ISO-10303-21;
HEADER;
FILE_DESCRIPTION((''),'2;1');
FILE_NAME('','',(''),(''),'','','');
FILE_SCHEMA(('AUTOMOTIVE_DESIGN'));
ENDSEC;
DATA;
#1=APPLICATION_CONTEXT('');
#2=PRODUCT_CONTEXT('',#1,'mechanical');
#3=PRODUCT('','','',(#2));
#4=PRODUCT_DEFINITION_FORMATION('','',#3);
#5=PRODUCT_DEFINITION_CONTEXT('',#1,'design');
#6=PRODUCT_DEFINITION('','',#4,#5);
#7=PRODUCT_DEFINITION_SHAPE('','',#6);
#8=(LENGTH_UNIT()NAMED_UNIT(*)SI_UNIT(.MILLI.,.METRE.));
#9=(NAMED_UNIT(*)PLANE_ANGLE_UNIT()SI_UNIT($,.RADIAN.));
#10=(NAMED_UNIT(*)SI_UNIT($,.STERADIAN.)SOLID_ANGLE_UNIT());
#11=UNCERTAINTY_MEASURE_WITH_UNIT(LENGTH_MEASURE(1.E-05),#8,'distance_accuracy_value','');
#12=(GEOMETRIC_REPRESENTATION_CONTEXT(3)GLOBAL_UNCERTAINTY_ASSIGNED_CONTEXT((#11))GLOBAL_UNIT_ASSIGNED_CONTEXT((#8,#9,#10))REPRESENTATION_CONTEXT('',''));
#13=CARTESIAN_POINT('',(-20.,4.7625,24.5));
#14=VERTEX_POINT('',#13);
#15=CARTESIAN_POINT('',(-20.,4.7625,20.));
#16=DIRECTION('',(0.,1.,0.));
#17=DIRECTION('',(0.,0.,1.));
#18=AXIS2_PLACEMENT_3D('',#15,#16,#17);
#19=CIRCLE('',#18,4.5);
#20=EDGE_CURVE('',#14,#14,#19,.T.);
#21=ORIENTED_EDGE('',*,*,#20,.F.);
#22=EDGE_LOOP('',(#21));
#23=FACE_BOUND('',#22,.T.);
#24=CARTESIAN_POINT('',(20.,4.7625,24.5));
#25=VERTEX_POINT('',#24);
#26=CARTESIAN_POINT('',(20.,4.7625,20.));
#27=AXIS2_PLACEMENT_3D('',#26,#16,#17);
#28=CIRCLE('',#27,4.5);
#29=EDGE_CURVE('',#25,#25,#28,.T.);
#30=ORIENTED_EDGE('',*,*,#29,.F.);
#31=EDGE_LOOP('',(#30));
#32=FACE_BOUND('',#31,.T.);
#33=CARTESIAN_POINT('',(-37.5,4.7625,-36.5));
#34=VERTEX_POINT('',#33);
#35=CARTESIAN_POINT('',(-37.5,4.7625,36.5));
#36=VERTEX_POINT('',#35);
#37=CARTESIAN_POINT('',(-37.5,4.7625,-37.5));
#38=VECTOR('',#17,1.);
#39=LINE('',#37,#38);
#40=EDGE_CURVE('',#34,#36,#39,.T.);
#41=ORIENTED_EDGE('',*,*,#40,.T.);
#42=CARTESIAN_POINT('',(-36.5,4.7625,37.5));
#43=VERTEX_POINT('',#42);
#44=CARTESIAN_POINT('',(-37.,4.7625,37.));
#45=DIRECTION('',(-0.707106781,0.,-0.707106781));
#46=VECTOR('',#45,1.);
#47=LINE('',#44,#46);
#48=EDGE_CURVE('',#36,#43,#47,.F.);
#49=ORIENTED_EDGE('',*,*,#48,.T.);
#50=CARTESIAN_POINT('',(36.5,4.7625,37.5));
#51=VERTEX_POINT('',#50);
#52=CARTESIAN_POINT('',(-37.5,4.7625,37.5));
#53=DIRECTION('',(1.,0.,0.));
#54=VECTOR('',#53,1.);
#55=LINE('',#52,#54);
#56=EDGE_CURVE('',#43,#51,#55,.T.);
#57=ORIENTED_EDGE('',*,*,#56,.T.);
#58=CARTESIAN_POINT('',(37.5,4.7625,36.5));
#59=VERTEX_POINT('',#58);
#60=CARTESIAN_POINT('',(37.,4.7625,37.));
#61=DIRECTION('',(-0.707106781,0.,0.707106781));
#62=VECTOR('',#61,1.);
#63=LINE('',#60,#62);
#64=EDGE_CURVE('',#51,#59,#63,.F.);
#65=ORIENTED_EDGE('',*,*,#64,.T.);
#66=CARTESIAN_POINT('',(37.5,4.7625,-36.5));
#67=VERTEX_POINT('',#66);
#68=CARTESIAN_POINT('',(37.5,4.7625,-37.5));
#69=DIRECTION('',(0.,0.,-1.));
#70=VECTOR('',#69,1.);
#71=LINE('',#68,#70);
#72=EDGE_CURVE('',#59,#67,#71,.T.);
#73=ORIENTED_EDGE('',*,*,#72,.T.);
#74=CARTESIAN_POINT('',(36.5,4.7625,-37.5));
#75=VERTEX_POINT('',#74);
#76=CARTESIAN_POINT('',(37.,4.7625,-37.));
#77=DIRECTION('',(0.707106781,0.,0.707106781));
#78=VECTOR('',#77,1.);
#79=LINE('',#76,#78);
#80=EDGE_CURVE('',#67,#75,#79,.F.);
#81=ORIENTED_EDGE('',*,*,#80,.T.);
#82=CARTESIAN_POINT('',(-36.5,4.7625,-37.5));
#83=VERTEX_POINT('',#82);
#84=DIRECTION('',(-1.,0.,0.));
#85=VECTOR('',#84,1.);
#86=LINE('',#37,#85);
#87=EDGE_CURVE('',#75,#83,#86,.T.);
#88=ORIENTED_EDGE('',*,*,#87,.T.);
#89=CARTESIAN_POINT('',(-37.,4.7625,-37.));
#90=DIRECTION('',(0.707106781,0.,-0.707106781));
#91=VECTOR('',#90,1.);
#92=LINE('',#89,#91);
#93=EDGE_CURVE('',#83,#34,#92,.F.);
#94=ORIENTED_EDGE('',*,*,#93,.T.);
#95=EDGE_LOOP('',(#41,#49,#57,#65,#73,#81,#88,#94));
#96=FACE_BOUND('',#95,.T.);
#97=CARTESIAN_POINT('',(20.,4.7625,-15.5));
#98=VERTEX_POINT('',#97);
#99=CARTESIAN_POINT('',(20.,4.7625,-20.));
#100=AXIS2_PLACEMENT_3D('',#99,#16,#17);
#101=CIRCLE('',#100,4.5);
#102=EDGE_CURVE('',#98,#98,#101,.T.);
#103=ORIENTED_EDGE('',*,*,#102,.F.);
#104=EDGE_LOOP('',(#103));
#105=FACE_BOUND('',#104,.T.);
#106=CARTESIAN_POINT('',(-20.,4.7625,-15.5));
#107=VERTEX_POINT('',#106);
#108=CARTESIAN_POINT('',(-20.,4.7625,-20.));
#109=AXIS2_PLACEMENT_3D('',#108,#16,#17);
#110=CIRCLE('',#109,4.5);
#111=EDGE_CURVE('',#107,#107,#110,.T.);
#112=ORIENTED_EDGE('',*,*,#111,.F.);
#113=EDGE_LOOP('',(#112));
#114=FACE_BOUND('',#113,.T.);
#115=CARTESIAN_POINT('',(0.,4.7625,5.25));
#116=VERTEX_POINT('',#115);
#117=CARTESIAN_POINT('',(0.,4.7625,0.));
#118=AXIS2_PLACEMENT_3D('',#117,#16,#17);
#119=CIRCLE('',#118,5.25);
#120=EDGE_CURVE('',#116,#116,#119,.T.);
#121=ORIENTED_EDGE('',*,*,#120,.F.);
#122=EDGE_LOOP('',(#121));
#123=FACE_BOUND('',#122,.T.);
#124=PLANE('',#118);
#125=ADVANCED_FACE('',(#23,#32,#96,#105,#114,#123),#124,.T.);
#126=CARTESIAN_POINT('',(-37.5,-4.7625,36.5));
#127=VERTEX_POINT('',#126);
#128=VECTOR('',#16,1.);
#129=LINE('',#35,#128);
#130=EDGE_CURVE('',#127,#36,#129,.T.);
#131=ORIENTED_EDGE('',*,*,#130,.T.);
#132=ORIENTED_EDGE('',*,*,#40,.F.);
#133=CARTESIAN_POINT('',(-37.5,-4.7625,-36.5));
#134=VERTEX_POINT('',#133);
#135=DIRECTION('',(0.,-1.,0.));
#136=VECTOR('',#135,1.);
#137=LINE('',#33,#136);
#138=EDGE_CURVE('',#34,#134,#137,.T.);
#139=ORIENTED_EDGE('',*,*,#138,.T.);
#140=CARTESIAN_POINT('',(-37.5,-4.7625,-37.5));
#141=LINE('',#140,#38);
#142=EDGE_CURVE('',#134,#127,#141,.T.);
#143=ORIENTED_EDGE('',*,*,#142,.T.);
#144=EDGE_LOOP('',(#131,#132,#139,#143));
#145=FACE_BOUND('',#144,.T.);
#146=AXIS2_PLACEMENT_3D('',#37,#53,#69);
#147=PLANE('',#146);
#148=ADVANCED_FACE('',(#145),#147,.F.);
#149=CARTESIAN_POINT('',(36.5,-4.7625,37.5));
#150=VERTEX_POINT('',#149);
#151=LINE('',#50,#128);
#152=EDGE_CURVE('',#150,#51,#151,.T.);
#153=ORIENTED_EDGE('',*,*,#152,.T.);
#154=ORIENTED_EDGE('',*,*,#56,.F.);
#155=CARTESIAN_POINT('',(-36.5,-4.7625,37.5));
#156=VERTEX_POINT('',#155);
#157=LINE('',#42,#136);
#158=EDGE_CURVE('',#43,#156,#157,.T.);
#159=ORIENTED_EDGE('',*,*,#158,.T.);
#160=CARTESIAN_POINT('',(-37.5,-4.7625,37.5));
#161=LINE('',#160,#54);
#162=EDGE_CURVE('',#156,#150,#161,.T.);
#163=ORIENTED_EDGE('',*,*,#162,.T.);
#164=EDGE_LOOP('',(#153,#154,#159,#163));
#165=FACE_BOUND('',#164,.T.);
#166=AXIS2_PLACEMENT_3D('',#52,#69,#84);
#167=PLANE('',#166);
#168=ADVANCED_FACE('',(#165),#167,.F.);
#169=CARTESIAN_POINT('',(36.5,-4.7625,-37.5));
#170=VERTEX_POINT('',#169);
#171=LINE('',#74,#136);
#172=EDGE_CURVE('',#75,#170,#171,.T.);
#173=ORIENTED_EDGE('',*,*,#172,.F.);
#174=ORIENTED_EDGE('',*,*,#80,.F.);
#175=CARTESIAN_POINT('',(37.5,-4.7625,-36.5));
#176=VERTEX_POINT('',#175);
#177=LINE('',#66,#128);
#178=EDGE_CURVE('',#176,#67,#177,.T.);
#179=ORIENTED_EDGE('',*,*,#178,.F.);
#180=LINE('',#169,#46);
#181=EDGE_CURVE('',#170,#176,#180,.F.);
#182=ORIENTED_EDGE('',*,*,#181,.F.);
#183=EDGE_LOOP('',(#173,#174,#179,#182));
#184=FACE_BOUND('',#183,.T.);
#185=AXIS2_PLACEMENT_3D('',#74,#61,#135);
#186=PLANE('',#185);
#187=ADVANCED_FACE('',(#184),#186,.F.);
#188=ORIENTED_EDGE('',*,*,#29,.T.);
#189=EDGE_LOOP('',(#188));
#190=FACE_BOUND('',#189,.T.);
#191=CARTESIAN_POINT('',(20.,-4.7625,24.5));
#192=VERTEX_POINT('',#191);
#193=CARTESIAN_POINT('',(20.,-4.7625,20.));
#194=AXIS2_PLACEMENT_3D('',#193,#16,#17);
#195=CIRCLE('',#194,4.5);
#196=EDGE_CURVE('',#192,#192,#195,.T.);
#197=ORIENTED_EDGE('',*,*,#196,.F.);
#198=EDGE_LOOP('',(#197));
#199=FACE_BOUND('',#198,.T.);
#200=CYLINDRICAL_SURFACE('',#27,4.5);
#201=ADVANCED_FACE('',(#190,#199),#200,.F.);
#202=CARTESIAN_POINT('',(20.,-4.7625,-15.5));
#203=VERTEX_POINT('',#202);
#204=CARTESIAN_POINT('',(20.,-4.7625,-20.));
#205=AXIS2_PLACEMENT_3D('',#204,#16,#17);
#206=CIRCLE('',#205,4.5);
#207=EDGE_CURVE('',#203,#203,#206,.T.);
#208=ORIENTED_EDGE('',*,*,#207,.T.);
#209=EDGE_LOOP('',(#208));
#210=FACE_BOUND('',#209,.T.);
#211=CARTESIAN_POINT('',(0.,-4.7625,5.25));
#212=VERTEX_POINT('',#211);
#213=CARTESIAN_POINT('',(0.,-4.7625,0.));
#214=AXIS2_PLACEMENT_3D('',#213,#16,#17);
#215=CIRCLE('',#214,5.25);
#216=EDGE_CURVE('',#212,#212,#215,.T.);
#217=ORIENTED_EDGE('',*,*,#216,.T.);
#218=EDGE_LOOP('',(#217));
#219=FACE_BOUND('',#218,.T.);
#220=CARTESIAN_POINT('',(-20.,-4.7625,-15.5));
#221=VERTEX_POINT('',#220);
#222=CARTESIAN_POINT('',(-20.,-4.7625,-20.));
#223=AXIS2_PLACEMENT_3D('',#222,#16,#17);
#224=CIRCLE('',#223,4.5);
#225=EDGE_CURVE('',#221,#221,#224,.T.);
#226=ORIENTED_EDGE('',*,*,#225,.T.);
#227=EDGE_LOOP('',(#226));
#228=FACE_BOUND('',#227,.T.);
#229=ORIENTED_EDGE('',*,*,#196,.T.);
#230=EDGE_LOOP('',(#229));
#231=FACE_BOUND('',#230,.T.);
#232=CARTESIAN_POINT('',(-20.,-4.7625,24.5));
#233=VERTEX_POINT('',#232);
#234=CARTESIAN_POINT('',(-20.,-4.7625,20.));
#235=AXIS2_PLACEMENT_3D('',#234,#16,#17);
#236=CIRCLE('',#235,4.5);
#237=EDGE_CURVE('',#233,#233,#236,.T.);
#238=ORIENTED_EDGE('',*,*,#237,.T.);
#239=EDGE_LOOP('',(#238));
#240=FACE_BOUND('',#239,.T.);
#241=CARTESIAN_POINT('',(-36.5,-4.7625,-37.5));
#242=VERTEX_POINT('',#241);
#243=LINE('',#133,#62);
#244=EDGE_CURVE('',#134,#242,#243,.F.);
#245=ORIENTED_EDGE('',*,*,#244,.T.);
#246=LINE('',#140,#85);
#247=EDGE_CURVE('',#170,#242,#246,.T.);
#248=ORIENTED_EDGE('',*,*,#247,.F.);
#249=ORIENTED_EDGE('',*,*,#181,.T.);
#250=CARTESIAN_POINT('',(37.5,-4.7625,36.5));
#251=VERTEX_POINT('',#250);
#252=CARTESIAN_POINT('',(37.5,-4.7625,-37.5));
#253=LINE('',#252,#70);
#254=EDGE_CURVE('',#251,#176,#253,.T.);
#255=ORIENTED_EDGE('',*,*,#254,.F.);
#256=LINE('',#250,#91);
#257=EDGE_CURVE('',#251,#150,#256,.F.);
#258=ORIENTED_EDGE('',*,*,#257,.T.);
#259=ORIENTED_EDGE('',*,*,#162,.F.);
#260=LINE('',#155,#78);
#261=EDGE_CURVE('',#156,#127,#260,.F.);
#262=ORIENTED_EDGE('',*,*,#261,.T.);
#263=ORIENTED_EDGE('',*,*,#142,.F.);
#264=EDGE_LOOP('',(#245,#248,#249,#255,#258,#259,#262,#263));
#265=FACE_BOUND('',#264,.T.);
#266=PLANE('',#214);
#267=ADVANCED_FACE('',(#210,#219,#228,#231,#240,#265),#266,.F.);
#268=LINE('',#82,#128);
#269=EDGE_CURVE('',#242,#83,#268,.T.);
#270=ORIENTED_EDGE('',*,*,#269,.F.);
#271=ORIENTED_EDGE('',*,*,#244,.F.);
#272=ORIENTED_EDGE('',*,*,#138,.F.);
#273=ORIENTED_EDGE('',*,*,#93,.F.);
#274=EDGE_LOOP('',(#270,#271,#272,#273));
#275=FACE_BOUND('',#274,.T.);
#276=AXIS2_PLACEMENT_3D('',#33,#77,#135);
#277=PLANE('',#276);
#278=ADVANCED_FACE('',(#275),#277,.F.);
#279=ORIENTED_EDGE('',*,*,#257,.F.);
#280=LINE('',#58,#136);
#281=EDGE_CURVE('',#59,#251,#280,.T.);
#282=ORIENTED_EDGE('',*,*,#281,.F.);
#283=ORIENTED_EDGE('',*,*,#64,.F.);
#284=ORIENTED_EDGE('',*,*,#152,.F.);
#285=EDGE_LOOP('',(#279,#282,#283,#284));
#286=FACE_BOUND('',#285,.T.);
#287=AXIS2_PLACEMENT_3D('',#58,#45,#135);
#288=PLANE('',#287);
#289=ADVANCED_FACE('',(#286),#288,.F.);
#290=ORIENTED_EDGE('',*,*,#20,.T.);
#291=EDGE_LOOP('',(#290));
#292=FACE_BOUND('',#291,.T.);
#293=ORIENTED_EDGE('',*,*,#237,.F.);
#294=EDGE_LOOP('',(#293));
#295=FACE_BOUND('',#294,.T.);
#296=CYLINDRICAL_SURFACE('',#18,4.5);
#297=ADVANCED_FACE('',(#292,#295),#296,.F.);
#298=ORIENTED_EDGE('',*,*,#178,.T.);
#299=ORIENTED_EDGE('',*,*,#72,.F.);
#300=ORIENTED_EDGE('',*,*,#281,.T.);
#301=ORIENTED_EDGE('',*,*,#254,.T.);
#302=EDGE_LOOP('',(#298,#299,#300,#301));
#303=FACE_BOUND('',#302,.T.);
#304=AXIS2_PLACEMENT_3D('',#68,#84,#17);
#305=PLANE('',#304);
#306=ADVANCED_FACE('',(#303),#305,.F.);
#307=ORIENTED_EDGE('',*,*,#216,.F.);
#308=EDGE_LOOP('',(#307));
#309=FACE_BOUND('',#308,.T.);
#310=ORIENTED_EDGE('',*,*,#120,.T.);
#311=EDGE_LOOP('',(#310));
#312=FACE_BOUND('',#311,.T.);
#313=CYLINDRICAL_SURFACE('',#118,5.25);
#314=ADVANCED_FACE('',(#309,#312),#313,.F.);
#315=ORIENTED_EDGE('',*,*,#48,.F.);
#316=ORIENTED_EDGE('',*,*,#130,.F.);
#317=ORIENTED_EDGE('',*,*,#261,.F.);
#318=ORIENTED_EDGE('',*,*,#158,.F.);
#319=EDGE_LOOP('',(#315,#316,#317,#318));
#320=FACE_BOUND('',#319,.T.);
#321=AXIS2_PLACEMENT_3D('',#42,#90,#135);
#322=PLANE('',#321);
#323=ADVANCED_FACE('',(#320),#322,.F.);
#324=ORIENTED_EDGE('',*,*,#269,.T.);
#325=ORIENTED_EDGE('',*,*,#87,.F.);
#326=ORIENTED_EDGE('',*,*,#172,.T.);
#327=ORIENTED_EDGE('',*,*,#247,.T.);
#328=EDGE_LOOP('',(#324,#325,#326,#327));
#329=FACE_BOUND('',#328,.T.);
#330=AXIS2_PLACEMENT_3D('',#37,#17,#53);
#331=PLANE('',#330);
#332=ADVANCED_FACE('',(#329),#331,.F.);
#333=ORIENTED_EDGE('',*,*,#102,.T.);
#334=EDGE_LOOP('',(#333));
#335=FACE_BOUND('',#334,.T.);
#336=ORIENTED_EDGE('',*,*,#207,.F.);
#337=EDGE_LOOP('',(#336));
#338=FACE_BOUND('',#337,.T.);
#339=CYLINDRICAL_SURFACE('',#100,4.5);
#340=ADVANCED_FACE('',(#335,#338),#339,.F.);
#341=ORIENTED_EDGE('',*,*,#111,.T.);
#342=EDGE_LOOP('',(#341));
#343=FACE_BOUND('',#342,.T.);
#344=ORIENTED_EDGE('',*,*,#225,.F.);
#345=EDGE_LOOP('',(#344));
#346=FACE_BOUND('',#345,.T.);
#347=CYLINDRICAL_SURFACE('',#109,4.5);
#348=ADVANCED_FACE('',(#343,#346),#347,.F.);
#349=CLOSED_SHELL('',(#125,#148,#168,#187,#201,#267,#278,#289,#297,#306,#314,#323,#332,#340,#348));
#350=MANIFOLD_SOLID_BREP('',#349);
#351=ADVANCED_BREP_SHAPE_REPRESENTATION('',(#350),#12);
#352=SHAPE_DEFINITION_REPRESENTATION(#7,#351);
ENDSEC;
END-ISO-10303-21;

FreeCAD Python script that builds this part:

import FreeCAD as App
import Part
import Sketcher


def edges_at(feature, points):
    """Names of the edges that pass closest to the given points."""
    edges = feature.Shape.Edges
    near = lambda p: min(range(len(edges)), key=lambda i: edges[i].distToShape(Part.Vertex(*p))[0])
    return sorted({f"Edge{near(p) + 1}" for p in points})


def add_polygon(sketch, points):
    """Adds a closed chain of lines whose ends are joined by coincident constraints."""
    first, n = sketch.GeometryCount, len(points)
    for a, b in zip(points, points[1:] + points[:1]):
        sketch.addGeometry(Part.LineSegment(App.Vector(*a, 0), App.Vector(*b, 0)), False)
    for i in range(n):
        sketch.addConstraint(Sketcher.Constraint("Coincident", first + i, 2, first + (i + 1) % n, 1))

doc = App.newDocument("Part")
body = doc.addObject("PartDesign::Body", "Body")

sketch1 = body.newObject("Sketcher::SketchObject", "Sketch")
sketch1.AttachmentSupport = (doc.getObject("XZ_Plane"), [""])
sketch1.MapMode = "FlatFace"
add_polygon(sketch1, [(-38, -38), (-38, 38), (38, 38), (38, -38)])
sketch1.addConstraint([
    Sketcher.Constraint("Vertical", 0),
    Sketcher.Constraint("Horizontal", 1),
    Sketcher.Constraint("Vertical", 2),
    Sketcher.Constraint("Horizontal", 3),
    Sketcher.Constraint("Symmetric", 0, 2, 2, 2, -1, 1),
    Sketcher.Constraint("Equal", 3, 0),
    Sketcher.Constraint("DistanceX", 1, 1, 1, 2, 75.0),
])
pad1 = body.newObject("PartDesign::Pad", "Pad")
pad1.Profile = sketch1
pad1.Length = 9.525
pad1.Midplane = True

sketch2 = body.newObject("Sketcher::SketchObject", "Sketch001")
sketch2.AttachmentSupport = (doc.getObject("XZ_Plane"), [""])
sketch2.MapMode = "FlatFace"
sketch2.AttachmentOffset = App.Placement(App.Vector(0, 0, -4.7625), App.Rotation())
sketch2.addGeometry([
    Part.Circle(App.Vector(-20, -20, 0), App.Vector(0, 0, 1), 4.5),
    Part.Circle(App.Vector(20, -20, 0), App.Vector(0, 0, 1), 4.5),
    Part.Circle(App.Vector(-20, 20, 0), App.Vector(0, 0, 1), 4.5),
    Part.Circle(App.Vector(20, 20, 0), App.Vector(0, 0, 1), 4.5),
], False)
sketch2.addConstraint([
    Sketcher.Constraint("Equal", 0, 1),
    Sketcher.Constraint("Equal", 1, 2),
    Sketcher.Constraint("Equal", 2, 3),
    Sketcher.Constraint("Symmetric", 1, 3, 2, 3, -1, 1),
    Sketcher.Constraint("Symmetric", 0, 3, 3, 3, -1, 1),
    Sketcher.Constraint("Symmetric", 0, 3, 1, 3, -2),
    Sketcher.Constraint("Diameter", 0, 9.0),
    Sketcher.Constraint("DistanceX", 0, 3, -1, 1, 20.0),
    Sketcher.Constraint("DistanceY", 0, 3, -1, 1, 20.0),
])
doc.recompute()
hole = body.newObject("PartDesign::Hole", "Hole")
hole.Profile = sketch2
hole.ThreadType = "None"
hole.Diameter = 9
hole.DepthType = "ThroughAll"
hole.Reversed = True

sketch3 = body.newObject("Sketcher::SketchObject", "Sketch002")
sketch3.AttachmentSupport = (doc.getObject("XZ_Plane"), [""])
sketch3.MapMode = "FlatFace"
sketch3.AttachmentOffset = App.Placement(App.Vector(0, 0, -4.7625), App.Rotation())
sketch3.addGeometry(Part.Circle(App.Vector(0, 0, 0), App.Vector(0, 0, 1), 5), False)
sketch3.addConstraint([
    Sketcher.Constraint("Coincident", 0, 3, -1, 1),
    Sketcher.Constraint("Diameter", 0, 10.5),
])
doc.recompute()
hole2 = body.newObject("PartDesign::Hole", "Hole001")
hole2.Profile = sketch3
hole2.ThreadType = "None"
hole2.Diameter = 10.5
hole2.DepthType = "ThroughAll"
hole2.Reversed = True
doc.recompute()

chamfer = body.newObject("PartDesign::Chamfer", "Chamfer")
chamfer.Base = (hole2, edges_at(hole2, [
    (37.5, 0, 37.5),
    (-37.5, 0, 37.5),
    (-37.5, 0, -37.5),
    (37.5, 0, -37.5),
]))
chamfer.Size = 1

doc.recompute()
